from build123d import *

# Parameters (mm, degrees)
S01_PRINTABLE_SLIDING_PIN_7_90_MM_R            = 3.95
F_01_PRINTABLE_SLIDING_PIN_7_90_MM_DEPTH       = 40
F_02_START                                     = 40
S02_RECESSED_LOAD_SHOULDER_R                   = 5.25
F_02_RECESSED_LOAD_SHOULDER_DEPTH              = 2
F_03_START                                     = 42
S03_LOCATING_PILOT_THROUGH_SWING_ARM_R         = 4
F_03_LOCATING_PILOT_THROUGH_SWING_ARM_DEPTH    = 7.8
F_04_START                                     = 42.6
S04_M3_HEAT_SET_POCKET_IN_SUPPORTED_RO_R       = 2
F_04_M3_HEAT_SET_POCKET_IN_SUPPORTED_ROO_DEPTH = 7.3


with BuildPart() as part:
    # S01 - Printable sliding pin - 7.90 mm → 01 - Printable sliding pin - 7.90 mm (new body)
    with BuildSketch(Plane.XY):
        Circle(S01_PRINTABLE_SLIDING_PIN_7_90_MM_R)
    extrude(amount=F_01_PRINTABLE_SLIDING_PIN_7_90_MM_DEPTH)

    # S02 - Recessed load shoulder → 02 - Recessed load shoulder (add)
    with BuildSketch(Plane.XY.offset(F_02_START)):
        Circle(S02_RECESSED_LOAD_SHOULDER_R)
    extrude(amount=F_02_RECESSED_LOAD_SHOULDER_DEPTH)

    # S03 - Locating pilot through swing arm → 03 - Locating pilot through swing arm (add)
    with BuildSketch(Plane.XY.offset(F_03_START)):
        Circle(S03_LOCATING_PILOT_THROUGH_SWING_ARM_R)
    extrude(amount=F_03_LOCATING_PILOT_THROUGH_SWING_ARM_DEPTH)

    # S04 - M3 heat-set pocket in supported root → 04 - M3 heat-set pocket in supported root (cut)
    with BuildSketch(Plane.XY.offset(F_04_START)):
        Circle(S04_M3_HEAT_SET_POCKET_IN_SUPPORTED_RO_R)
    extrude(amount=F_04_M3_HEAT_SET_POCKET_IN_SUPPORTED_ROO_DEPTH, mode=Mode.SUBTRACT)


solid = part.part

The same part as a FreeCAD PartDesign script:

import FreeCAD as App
import Part
import Sketcher
from FreeCAD import Vector

doc = App.newDocument("Part")
params = doc.addObject("Spreadsheet::Sheet", "Params")
for row, (alias, value) in enumerate([
    ("sketch1_diameter", "7.9 mm"),
    ("pad1_length", "40 mm"),
    ("sketch2_diameter", "10.5 mm"),
    ("pad2_length", "2 mm"),
    ("sketch3_diameter", "8 mm"),
    ("pad3_length", "7.8 mm"),
    ("sketch4_diameter", "4 mm"),
    ("pocket1_length", "7.3 mm"),
], start=1):
    params.set(f"A{row}", alias)
    params.set(f"B{row}", "=" + value)
    params.setAlias(f"B{row}", alias)

body = doc.addObject("PartDesign::Body", "Body")

sketch1 = body.newObject("Sketcher::SketchObject", "Sketch")
sketch1.AttachmentSupport = (doc.getObject("XY_Plane"), [""])
sketch1.MapMode = "FlatFace"
sketch1.addGeometry(Part.Circle(Vector(0, 0, 0), Vector(0, 0, 1), 4), False)
sketch1.addConstraint(Sketcher.Constraint("Coincident", 0, 3, -1, 1))
sketch1.addConstraint(Sketcher.Constraint("Diameter", 0, 7.9))
sketch1.setExpression("Constraints[1]", "Params.sketch1_diameter")
pad1 = body.newObject("PartDesign::Pad", "Pad")
pad1.Profile = sketch1
pad1.setExpression("Length", "Params.pad1_length")

sketch2 = body.newObject("Sketcher::SketchObject", "Sketch001")
sketch2.AttachmentSupport = (doc.getObject("XY_Plane"), [""])
sketch2.MapMode = "FlatFace"
sketch2.AttachmentOffset = App.Placement(Vector(0, 0, 40), App.Rotation())
sketch2.addGeometry(Part.Circle(Vector(0, 0, 0), Vector(0, 0, 1), 5), False)
sketch2.addConstraint(Sketcher.Constraint("Coincident", 0, 3, -1, 1))
sketch2.addConstraint(Sketcher.Constraint("Diameter", 0, 10.5))
sketch2.setExpression("Constraints[1]", "Params.sketch2_diameter")
pad2 = body.newObject("PartDesign::Pad", "Pad001")
pad2.Profile = sketch2
pad2.setExpression("Length", "Params.pad2_length")

sketch3 = body.newObject("Sketcher::SketchObject", "Sketch002")
sketch3.AttachmentSupport = (doc.getObject("XY_Plane"), [""])
sketch3.MapMode = "FlatFace"
sketch3.AttachmentOffset = App.Placement(Vector(0, 0, 42), App.Rotation())
sketch3.addGeometry(Part.Circle(Vector(0, 0, 0), Vector(0, 0, 1), 4), False)
sketch3.addConstraint(Sketcher.Constraint("Coincident", 0, 3, -1, 1))
sketch3.addConstraint(Sketcher.Constraint("Diameter", 0, 8.0))
sketch3.setExpression("Constraints[1]", "Params.sketch3_diameter")
pad3 = body.newObject("PartDesign::Pad", "Pad002")
pad3.Profile = sketch3
pad3.setExpression("Length", "Params.pad3_length")

sketch4 = body.newObject("Sketcher::SketchObject", "Sketch003")
sketch4.AttachmentSupport = (doc.getObject("XY_Plane"), [""])
sketch4.MapMode = "FlatFace"
sketch4.AttachmentOffset = App.Placement(Vector(0, 0, 42.6), App.Rotation())
sketch4.addGeometry(Part.Circle(Vector(0, 0, 0), Vector(0, 0, 1), 2), False)
sketch4.addConstraint(Sketcher.Constraint("Coincident", 0, 3, -1, 1))
sketch4.addConstraint(Sketcher.Constraint("Diameter", 0, 4.0))
sketch4.setExpression("Constraints[1]", "Params.sketch4_diameter")
pocket1 = body.newObject("PartDesign::Pocket", "Pocket")
pocket1.Profile = sketch4
pocket1.setExpression("Length", "Params.pocket1_length")
pocket1.Reversed = True

doc.recompute()
